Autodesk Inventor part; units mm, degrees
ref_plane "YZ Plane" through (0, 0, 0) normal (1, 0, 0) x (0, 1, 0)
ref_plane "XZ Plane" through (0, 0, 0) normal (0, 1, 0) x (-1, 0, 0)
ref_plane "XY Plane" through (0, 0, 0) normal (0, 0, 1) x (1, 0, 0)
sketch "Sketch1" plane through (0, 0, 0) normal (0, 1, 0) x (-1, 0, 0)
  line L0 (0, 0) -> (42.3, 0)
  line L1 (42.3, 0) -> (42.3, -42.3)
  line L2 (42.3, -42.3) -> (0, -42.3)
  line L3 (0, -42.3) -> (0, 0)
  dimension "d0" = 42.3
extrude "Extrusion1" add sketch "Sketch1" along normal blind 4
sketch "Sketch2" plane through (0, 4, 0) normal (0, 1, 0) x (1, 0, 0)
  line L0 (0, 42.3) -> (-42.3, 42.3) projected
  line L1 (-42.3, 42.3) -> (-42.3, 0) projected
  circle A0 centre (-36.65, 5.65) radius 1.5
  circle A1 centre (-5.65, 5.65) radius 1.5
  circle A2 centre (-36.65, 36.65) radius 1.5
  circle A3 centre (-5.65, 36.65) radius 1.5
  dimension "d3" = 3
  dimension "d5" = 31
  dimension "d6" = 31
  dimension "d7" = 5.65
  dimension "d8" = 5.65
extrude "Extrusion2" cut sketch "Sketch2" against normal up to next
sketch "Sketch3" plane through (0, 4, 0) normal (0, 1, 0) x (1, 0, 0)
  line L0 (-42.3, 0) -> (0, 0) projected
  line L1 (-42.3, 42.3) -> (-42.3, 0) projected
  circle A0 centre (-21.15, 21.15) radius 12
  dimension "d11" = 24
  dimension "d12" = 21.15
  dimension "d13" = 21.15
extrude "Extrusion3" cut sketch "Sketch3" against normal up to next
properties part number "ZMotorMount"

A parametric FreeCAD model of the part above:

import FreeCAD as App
import Part
import Sketcher

V = App.Vector


def add_polygon(sketch, points):
    """Adds a closed chain of lines whose ends are joined by coincident constraints."""
    first, n = sketch.GeometryCount, len(points)
    for a, b in zip(points, points[1:] + points[:1]):
        sketch.addGeometry(Part.LineSegment(App.Vector(*a, 0), App.Vector(*b, 0)), False)
    for i in range(n):
        sketch.addConstraint(Sketcher.Constraint("Coincident", first + i, 2, first + (i + 1) % n, 1))

doc = App.newDocument("Part")
body = doc.addObject("PartDesign::Body", "Body")

sketch1 = body.newObject("Sketcher::SketchObject", "Sketch")
sketch1.AttachmentSupport = (doc.getObject("XZ_Plane"), [""])
sketch1.MapMode = "FlatFace"
add_polygon(sketch1, [(-42, 0), (0, 0), (0, -42), (-42, -42)])
sketch1.addConstraint([
    Sketcher.Constraint("Horizontal", 0),
    Sketcher.Constraint("Vertical", 1),
    Sketcher.Constraint("Horizontal", 2),
    Sketcher.Constraint("Vertical", 3),
    Sketcher.Constraint("Coincident", 0, 2, -1, 1),
    Sketcher.Constraint("Equal", 2, 1),
    Sketcher.Constraint("DistanceX", 0, 1, 0, 2, 42.3),
])
pad1 = body.newObject("PartDesign::Pad", "Pad")
pad1.Profile = sketch1
pad1.Length = 4
pad1.Reversed = True

sketch2 = body.newObject("Sketcher::SketchObject", "Sketch001")
sketch2.AttachmentSupport = (doc.getObject("XZ_Plane"), [""])
sketch2.MapMode = "FlatFace"
sketch2.AttachmentOffset = App.Placement(V(0, 0, -4), App.Rotation())
sketch2.addGeometry([
    Part.Circle(V(-36.6, -5.7, 0), V(0, 0, 1), 1.5),
    Part.Circle(V(-5.7, -5.7, 0), V(0, 0, 1), 1.5),
    Part.Circle(V(-36.6, -36.6, 0), V(0, 0, 1), 1.5),
    Part.Circle(V(-5.7, -36.6, 0), V(0, 0, 1), 1.5),
], False)
sketch2.addConstraint([
    Sketcher.Constraint("Equal", 0, 1),
    Sketcher.Constraint("Equal", 1, 2),
    Sketcher.Constraint("Equal", 2, 3),
    Sketcher.Constraint("Horizontal", 0, 3, 1, 3),
    Sketcher.Constraint("Horizontal", 2, 3, 3, 3),
    Sketcher.Constraint("Vertical", 0, 3, 2, 3),
    Sketcher.Constraint("Vertical", 1, 3, 3, 3),
    Sketcher.Constraint("Diameter", 0, 3.0),
    Sketcher.Constraint("DistanceX", 0, 3, 1, 3, 31.0),
    Sketcher.Constraint("DistanceY", 2, 3, 0, 3, 31.0),
    Sketcher.Constraint("DistanceY", 0, 3, -1, 1, 5.65),
    Sketcher.Constraint("DistanceX", 1, 3, -1, 1, 5.65),
])
pocket1 = body.newObject("PartDesign::Pocket", "Pocket")
pocket1.Profile = sketch2
pocket1.Type = "UpToFirst"
pocket1.Reversed = True

sketch3 = body.newObject("Sketcher::SketchObject", "Sketch002")
sketch3.AttachmentSupport = (doc.getObject("XZ_Plane"), [""])
sketch3.MapMode = "FlatFace"
sketch3.AttachmentOffset = App.Placement(V(0, 0, -4), App.Rotation())
sketch3.addGeometry(Part.Circle(V(-21, -21, 0), V(0, 0, 1), 12), False)
sketch3.addConstraint([
    Sketcher.Constraint("Diameter", 0, 24.0),
    Sketcher.Constraint("DistanceX", 0, 3, -1, 1, 21.15),
    Sketcher.Constraint("DistanceY", 0, 3, -1, 1, 21.15),
])
pocket2 = body.newObject("PartDesign::Pocket", "Pocket001")
pocket2.Profile = sketch3
pocket2.Type = "UpToFirst"
pocket2.Reversed = True

doc.recompute()
